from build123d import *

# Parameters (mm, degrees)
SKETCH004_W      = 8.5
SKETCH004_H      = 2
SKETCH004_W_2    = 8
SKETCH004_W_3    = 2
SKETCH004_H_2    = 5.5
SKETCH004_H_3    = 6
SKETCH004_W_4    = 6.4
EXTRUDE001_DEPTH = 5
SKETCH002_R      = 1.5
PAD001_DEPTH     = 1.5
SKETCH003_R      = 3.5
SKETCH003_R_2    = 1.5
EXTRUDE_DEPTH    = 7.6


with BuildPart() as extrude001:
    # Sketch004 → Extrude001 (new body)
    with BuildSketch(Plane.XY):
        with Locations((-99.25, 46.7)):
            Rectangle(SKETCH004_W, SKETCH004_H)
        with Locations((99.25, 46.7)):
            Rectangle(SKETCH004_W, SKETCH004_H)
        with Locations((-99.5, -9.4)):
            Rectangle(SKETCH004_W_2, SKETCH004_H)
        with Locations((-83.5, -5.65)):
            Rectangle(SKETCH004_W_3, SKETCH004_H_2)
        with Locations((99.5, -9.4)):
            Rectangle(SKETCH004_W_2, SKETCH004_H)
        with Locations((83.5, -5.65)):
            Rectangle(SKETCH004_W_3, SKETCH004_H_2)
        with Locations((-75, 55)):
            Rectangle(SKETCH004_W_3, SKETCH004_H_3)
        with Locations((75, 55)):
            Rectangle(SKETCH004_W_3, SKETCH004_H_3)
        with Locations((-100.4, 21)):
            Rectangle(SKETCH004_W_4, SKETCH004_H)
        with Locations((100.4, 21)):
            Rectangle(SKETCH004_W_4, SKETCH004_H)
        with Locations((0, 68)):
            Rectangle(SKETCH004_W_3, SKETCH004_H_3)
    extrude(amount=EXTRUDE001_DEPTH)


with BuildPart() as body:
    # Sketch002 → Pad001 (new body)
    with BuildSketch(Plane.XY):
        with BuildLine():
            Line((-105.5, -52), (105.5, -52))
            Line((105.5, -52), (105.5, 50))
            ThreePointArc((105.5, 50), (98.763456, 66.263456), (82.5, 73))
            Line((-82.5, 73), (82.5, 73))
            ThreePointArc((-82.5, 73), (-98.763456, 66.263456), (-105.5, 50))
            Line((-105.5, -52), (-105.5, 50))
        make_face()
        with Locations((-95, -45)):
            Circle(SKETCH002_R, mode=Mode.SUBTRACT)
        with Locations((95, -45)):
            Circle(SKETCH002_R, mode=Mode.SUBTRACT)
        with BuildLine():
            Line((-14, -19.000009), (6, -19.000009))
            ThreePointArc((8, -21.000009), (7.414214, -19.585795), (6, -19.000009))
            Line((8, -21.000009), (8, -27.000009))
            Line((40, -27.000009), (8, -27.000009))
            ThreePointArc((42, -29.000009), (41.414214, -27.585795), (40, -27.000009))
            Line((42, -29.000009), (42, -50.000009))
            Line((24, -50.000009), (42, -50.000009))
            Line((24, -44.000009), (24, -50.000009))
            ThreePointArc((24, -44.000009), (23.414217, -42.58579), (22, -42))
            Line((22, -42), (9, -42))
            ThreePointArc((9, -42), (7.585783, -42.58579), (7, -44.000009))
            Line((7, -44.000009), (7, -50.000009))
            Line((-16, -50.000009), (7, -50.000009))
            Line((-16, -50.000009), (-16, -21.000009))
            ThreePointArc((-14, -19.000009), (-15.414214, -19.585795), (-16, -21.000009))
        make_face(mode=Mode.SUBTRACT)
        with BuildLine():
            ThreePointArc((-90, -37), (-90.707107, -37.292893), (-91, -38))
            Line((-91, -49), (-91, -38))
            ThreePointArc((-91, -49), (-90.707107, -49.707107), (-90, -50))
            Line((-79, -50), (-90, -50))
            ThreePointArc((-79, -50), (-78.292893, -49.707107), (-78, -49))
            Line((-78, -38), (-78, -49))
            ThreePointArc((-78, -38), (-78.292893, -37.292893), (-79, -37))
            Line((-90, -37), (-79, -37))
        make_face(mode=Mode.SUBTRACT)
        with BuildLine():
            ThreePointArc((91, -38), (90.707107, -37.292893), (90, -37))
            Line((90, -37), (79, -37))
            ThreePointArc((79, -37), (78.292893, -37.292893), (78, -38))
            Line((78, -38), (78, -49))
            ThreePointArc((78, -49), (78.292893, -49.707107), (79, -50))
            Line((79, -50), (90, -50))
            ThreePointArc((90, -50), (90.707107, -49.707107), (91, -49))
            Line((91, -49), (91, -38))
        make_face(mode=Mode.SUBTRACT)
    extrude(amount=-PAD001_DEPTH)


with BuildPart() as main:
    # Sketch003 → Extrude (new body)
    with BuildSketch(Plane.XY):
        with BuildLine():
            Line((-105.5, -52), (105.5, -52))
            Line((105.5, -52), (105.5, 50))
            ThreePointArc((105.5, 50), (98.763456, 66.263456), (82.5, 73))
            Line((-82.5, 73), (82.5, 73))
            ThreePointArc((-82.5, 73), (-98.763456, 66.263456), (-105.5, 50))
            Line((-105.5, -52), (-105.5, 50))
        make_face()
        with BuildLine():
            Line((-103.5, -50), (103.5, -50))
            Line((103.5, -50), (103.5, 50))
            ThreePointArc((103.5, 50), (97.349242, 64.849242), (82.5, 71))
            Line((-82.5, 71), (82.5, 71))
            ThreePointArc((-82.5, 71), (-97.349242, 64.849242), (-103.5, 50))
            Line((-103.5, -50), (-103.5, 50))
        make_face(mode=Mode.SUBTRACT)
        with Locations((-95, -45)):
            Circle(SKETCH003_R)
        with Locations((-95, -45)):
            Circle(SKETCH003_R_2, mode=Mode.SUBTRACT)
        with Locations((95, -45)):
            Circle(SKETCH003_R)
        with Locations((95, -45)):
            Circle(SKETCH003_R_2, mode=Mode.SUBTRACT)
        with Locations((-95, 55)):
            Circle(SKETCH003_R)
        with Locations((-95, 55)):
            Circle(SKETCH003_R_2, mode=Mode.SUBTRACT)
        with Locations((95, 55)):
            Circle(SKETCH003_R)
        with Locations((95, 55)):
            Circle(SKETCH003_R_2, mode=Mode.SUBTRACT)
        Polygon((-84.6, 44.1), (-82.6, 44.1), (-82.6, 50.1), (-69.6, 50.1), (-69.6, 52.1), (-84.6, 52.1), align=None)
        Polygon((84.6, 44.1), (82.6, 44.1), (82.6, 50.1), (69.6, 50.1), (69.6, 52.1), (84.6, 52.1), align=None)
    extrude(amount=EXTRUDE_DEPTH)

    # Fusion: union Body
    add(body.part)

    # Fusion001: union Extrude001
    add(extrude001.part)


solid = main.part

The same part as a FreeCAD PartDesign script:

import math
import FreeCAD as App
import Part
import Sketcher
from FreeCAD import Vector

doc = App.newDocument("Part")
body = doc.addObject("PartDesign::Body", "Body")
body.AllowCompound = True

sketch1 = body.newObject("Sketcher::SketchObject", "Sketch")
sketch1.AttachmentSupport = (doc.getObject("XY_Plane"), [""])
sketch1.MapMode = "FlatFace"
sketch1.addGeometry([
    Part.LineSegment(Vector(-103.5, 47.7, 0), Vector(-103.5, 45.7, 0)),
    Part.LineSegment(Vector(-103.5, 45.7, 0), Vector(-95, 45.7, 0)),
    Part.LineSegment(Vector(-95, 45.7, 0), Vector(-95, 47.7, 0)),
    Part.LineSegment(Vector(-95, 47.7, 0), Vector(-103.5, 47.7, 0)),
    Part.LineSegment(Vector(95, 47.7, 0), Vector(95, 45.7, 0)),
    Part.LineSegment(Vector(95, 45.7, 0), Vector(103.5, 45.7, 0)),
    Part.LineSegment(Vector(103.5, 45.7, 0), Vector(103.5, 47.7, 0)),
    Part.LineSegment(Vector(103.5, 47.7, 0), Vector(95, 47.7, 0)),
    Part.LineSegment(Vector(-103.5, -8.4, 0), Vector(-103.5, -10.4, 0)),
    Part.LineSegment(Vector(-103.5, -10.4, 0), Vector(-95.5, -10.4, 0)),
    Part.LineSegment(Vector(-95.5, -10.4, 0), Vector(-95.5, -8.4, 0)),
    Part.LineSegment(Vector(-95.5, -8.4, 0), Vector(-103.5, -8.4, 0)),
    Part.LineSegment(Vector(-84.5, -2.9, 0), Vector(-84.5, -8.4, 0)),
    Part.LineSegment(Vector(-84.5, -8.4, 0), Vector(-82.5, -8.4, 0)),
    Part.LineSegment(Vector(-82.5, -8.4, 0), Vector(-82.5, -2.9, 0)),
    Part.LineSegment(Vector(-82.5, -2.9, 0), Vector(-84.5, -2.9, 0)),
    Part.LineSegment(Vector(95.5, -8.4, 0), Vector(95.5, -10.4, 0)),
    Part.LineSegment(Vector(95.5, -10.4, 0), Vector(103.5, -10.4, 0)),
    Part.LineSegment(Vector(103.5, -10.4, 0), Vector(103.5, -8.4, 0)),
    Part.LineSegment(Vector(103.5, -8.4, 0), Vector(95.5, -8.4, 0)),
    Part.LineSegment(Vector(82.5, -2.9, 0), Vector(82.5, -8.4, 0)),
    Part.LineSegment(Vector(82.5, -8.4, 0), Vector(84.5, -8.4, 0)),
    Part.LineSegment(Vector(84.5, -8.4, 0), Vector(84.5, -2.9, 0)),
    Part.LineSegment(Vector(84.5, -2.9, 0), Vector(82.5, -2.9, 0)),
    Part.LineSegment(Vector(-76, 58, 0), Vector(-76, 52, 0)),
    Part.LineSegment(Vector(-76, 52, 0), Vector(-74, 52, 0)),
    Part.LineSegment(Vector(-74, 52, 0), Vector(-74, 58, 0)),
    Part.LineSegment(Vector(-74, 58, 0), Vector(-76, 58, 0)),
    Part.LineSegment(Vector(74, 58, 0), Vector(74, 52, 0)),
    Part.LineSegment(Vector(74, 52, 0), Vector(76, 52, 0)),
    Part.LineSegment(Vector(76, 52, 0), Vector(76, 58, 0)),
    Part.LineSegment(Vector(76, 58, 0), Vector(74, 58, 0)),
    Part.LineSegment(Vector(-103.6, 22, 0), Vector(-103.6, 20, 0)),
    Part.LineSegment(Vector(-103.6, 20, 0), Vector(-97.2, 20, 0)),
    Part.LineSegment(Vector(-97.2, 20, 0), Vector(-97.2, 22, 0)),
    Part.LineSegment(Vector(-97.2, 22, 0), Vector(-103.6, 22, 0)),
    Part.LineSegment(Vector(97.2, 22, 0), Vector(97.2, 20, 0)),
    Part.LineSegment(Vector(97.2, 20, 0), Vector(103.6, 20, 0)),
    Part.LineSegment(Vector(103.6, 20, 0), Vector(103.6, 22, 0)),
    Part.LineSegment(Vector(103.6, 22, 0), Vector(97.2, 22, 0)),
    Part.LineSegment(Vector(-1, 71, 0), Vector(-1, 65, 0)),
    Part.LineSegment(Vector(-1, 65, 0), Vector(1, 65, 0)),
    Part.LineSegment(Vector(1, 65, 0), Vector(1, 71, 0)),
    Part.LineSegment(Vector(1, 71, 0), Vector(-1, 71, 0)),
], False)
sketch1.addConstraint([
    Sketcher.Constraint("Coincident", 0, 2, 1, 1),
    Sketcher.Constraint("Coincident", 1, 2, 2, 1),
    Sketcher.Constraint("Coincident", 2, 2, 3, 1),
    Sketcher.Constraint("Coincident", 3, 2, 0, 1),
    Sketcher.Constraint("Coincident", 4, 2, 5, 1),
    Sketcher.Constraint("Coincident", 5, 2, 6, 1),
    Sketcher.Constraint("Coincident", 6, 2, 7, 1),
    Sketcher.Constraint("Coincident", 7, 2, 4, 1),
    Sketcher.Constraint("Coincident", 8, 2, 9, 1),
    Sketcher.Constraint("Coincident", 9, 2, 10, 1),
    Sketcher.Constraint("Coincident", 10, 2, 11, 1),
    Sketcher.Constraint("Coincident", 11, 2, 8, 1),
    Sketcher.Constraint("Coincident", 12, 2, 13, 1),
    Sketcher.Constraint("Coincident", 13, 2, 14, 1),
    Sketcher.Constraint("Coincident", 14, 2, 15, 1),
    Sketcher.Constraint("Coincident", 15, 2, 12, 1),
    Sketcher.Constraint("Coincident", 16, 2, 17, 1),
    Sketcher.Constraint("Coincident", 17, 2, 18, 1),
    Sketcher.Constraint("Coincident", 18, 2, 19, 1),
    Sketcher.Constraint("Coincident", 19, 2, 16, 1),
    Sketcher.Constraint("Coincident", 20, 2, 21, 1),
    Sketcher.Constraint("Coincident", 21, 2, 22, 1),
    Sketcher.Constraint("Coincident", 22, 2, 23, 1),
    Sketcher.Constraint("Coincident", 23, 2, 20, 1),
    Sketcher.Constraint("Coincident", 24, 2, 25, 1),
    Sketcher.Constraint("Coincident", 25, 2, 26, 1),
    Sketcher.Constraint("Coincident", 26, 2, 27, 1),
    Sketcher.Constraint("Coincident", 27, 2, 24, 1),
    Sketcher.Constraint("Coincident", 28, 2, 29, 1),
    Sketcher.Constraint("Coincident", 29, 2, 30, 1),
    Sketcher.Constraint("Coincident", 30, 2, 31, 1),
    Sketcher.Constraint("Coincident", 31, 2, 28, 1),
    Sketcher.Constraint("Coincident", 32, 2, 33, 1),
    Sketcher.Constraint("Coincident", 33, 2, 34, 1),
    Sketcher.Constraint("Coincident", 34, 2, 35, 1),
    Sketcher.Constraint("Coincident", 35, 2, 32, 1),
    Sketcher.Constraint("Coincident", 36, 2, 37, 1),
    Sketcher.Constraint("Coincident", 37, 2, 38, 1),
    Sketcher.Constraint("Coincident", 38, 2, 39, 1),
    Sketcher.Constraint("Coincident", 39, 2, 36, 1),
    Sketcher.Constraint("Coincident", 40, 2, 41, 1),
    Sketcher.Constraint("Coincident", 41, 2, 42, 1),
    Sketcher.Constraint("Coincident", 42, 2, 43, 1),
    Sketcher.Constraint("Coincident", 43, 2, 40, 1),
    Sketcher.Constraint("Vertical", 0),
    Sketcher.Constraint("Horizontal", 1),
    Sketcher.Constraint("Vertical", 2),
    Sketcher.Constraint("Horizontal", 3),
    Sketcher.Constraint("Vertical", 4),
    Sketcher.Constraint("Horizontal", 5),
    Sketcher.Constraint("Vertical", 6),
    Sketcher.Constraint("Horizontal", 7),
    Sketcher.Constraint("Vertical", 8),
    Sketcher.Constraint("Horizontal", 9),
    Sketcher.Constraint("Vertical", 10),
    Sketcher.Constraint("Horizontal", 11),
    Sketcher.Constraint("Vertical", 12),
    Sketcher.Constraint("Horizontal", 13),
    Sketcher.Constraint("Vertical", 14),
    Sketcher.Constraint("Horizontal", 15),
    Sketcher.Constraint("Vertical", 16),
    Sketcher.Constraint("Horizontal", 17),
    Sketcher.Constraint("Vertical", 18),
    Sketcher.Constraint("Horizontal", 19),
    Sketcher.Constraint("Vertical", 20),
    Sketcher.Constraint("Horizontal", 21),
    Sketcher.Constraint("Vertical", 22),
    Sketcher.Constraint("Horizontal", 23),
    Sketcher.Constraint("Vertical", 24),
    Sketcher.Constraint("Horizontal", 25),
    Sketcher.Constraint("Vertical", 26),
    Sketcher.Constraint("Horizontal", 27),
    Sketcher.Constraint("Vertical", 28),
    Sketcher.Constraint("Horizontal", 29),
    Sketcher.Constraint("Vertical", 30),
    Sketcher.Constraint("Horizontal", 31),
    Sketcher.Constraint("Vertical", 32),
    Sketcher.Constraint("Horizontal", 33),
    Sketcher.Constraint("Vertical", 34),
    Sketcher.Constraint("Horizontal", 35),
    Sketcher.Constraint("Vertical", 36),
    Sketcher.Constraint("Horizontal", 37),
    Sketcher.Constraint("Vertical", 38),
    Sketcher.Constraint("Horizontal", 39),
    Sketcher.Constraint("Vertical", 40),
    Sketcher.Constraint("Horizontal", 41),
    Sketcher.Constraint("Vertical", 42),
    Sketcher.Constraint("Horizontal", 43),
    Sketcher.Constraint("Symmetric", 1, 2, 4, 2, -2),
    Sketcher.Constraint("Symmetric", 3, 2, 6, 2, -2),
    Sketcher.Constraint("Symmetric", 9, 2, 16, 2, -2),
    Sketcher.Constraint("Symmetric", 11, 2, 18, 2, -2),
    Sketcher.Constraint("Symmetric", 13, 2, 20, 2, -2),
    Sketcher.Constraint("Symmetric", 15, 2, 22, 2, -2),
    Sketcher.Constraint("Symmetric", 25, 2, 28, 2, -2),
    Sketcher.Constraint("Symmetric", 27, 2, 30, 2, -2),
    Sketcher.Constraint("Symmetric", 33, 2, 36, 2, -2),
    Sketcher.Constraint("Symmetric", 35, 2, 38, 2, -2),
    Sketcher.Constraint("Horizontal", 11, 2, 12, 2),
    Sketcher.Constraint("Vertical", 3, 2, 8, 2),
    Sketcher.Constraint("Equal", 23, 25),
    Sketcher.Constraint("Equal", 31, 41),
    Sketcher.Constraint("Equal", 43, 0),
    Sketcher.Constraint("Equal", 6, 8),
    Sketcher.Constraint("Equal", 18, 32),
    Sketcher.Constraint("Equal", 30, 40),
    Sketcher.Constraint("DistanceX", 9, 1, 9, 2, 8.0),
    Sketcher.Constraint("DistanceX", 13, 1, 13, 2, 2.0),
    Sketcher.Constraint("DistanceY", 24, 2, 24, 1, 6.0),
    Sketcher.Constraint("DistanceX", 1, 1, 1, 2, 8.5),
    Sketcher.Constraint("DistanceX", 33, 1, 33, 2, 6.4),
    Sketcher.Constraint("DistanceY", 12, 2, 12, 1, 5.5),
    Sketcher.Constraint("DistanceX", 1, 2, -1, 1, 95.0),
    Sketcher.Constraint("DistanceX", 24, 2, -1, 1, 76.0),
    Sketcher.Constraint("DistanceY", -1, 1, 24, 2, 52.0),
    Sketcher.Constraint("DistanceY", -1, 1, 32, 2, 20.0),
    Sketcher.Constraint("DistanceX", 40, 2, -1, 1, 1.0),
    Sketcher.Constraint("DistanceY", -1, 1, 40, 2, 65.0),
    Sketcher.Constraint("DistanceX", 10, 2, 12, 2, 11.0),
    Sketcher.Constraint("DistanceY", -1, 1, 0, 2, 45.7),
    Sketcher.Constraint("DistanceY", 8, 2, -1, 1, 10.4),
    Sketcher.Constraint("DistanceX", 32, 2, -1, 1, 103.6),
])
pad1 = body.newObject("PartDesign::Pad", "Pad")
pad1.Profile = sketch1
pad1.Length = 5
body2 = doc.addObject("PartDesign::Body", "Body001")

sketch2 = body2.newObject("Sketcher::SketchObject", "Sketch001")
sketch2.AttachmentSupport = (doc.getObject("XY_Plane001"), [""])
sketch2.MapMode = "FlatFace"
sketch2.addGeometry([
    Part.LineSegment(Vector(-105.5, -52, 0), Vector(105.5, -52, 0)),
    Part.LineSegment(Vector(105.5, -52, 0), Vector(105.5, 50, 0)),
    Part.ArcOfCircle(Part.Circle(Vector(82.5, 50, 0), Vector(0, 0, 1), 23), math.radians(0), math.radians(90)),
    Part.LineSegment(Vector(82.5, 73, 0), Vector(-82.5, 73, 0)),
    Part.ArcOfCircle(Part.Circle(Vector(-82.5, 50, 0), Vector(0, 0, 1), 23), math.radians(90), math.radians(180)),
    Part.LineSegment(Vector(-105.5, 50, 0), Vector(-105.5, -52, 0)),
    Part.Circle(Vector(-95, -45, 0), Vector(0, 0, 1), 1.5),
    Part.ArcOfCircle(Part.Circle(Vector(-90, -38, 0), Vector(0, 0, 1), 1), math.radians(90), math.radians(180)),
    Part.LineSegment(Vector(-90, -37, 0), Vector(-79, -37, 0)),
    Part.ArcOfCircle(Part.Circle(Vector(-79, -38, 0), Vector(0, 0, 1), 1), math.radians(0), math.radians(90)),
    Part.LineSegment(Vector(-78, -38, 0), Vector(-78, -49, 0)),
    Part.ArcOfCircle(Part.Circle(Vector(-79, -49, 0), Vector(0, 0, 1), 1), math.radians(-90), math.radians(0)),
    Part.LineSegment(Vector(-79, -50, 0), Vector(-90, -50, 0)),
    Part.ArcOfCircle(Part.Circle(Vector(-90, -49, 0), Vector(0, 0, 1), 1), math.radians(180), math.radians(270)),
    Part.LineSegment(Vector(-91, -49, 0), Vector(-91, -38, 0)),
    Part.Circle(Vector(95, -45, 0), Vector(0, 0, 1), 1.5),
    Part.ArcOfCircle(Part.Circle(Vector(90, -38, 0), Vector(0, 0, 1), 1), math.radians(0), math.radians(90)),
    Part.LineSegment(Vector(91, -38, 0), Vector(91, -49, 0)),
    Part.ArcOfCircle(Part.Circle(Vector(90, -49, 0), Vector(0, 0, 1), 1), math.radians(-90), math.radians(0)),
    Part.LineSegment(Vector(90, -50, 0), Vector(79, -50, 0)),
    Part.ArcOfCircle(Part.Circle(Vector(79, -49, 0), Vector(0, 0, 1), 1), math.radians(180), math.radians(270)),
    Part.LineSegment(Vector(78, -49, 0), Vector(78, -38, 0)),
    Part.ArcOfCircle(Part.Circle(Vector(79, -38, 0), Vector(0, 0, 1), 1), math.radians(90), math.radians(180)),
    Part.LineSegment(Vector(79, -37, 0), Vector(90, -37, 0)),
    Part.ArcOfCircle(Part.Circle(Vector(-14, -21, 0), Vector(0, 0, 1), 2), math.radians(90), math.radians(180)),
    Part.LineSegment(Vector(-14, -19, 0), Vector(6, -19, 0)),
    Part.ArcOfCircle(Part.Circle(Vector(6, -21, 0), Vector(0, 0, 1), 2), math.radians(0), math.radians(90)),
    Part.LineSegment(Vector(8, -21, 0), Vector(8, -27, 0)),
    Part.LineSegment(Vector(8, -27, 0), Vector(40, -27, 0)),
    Part.ArcOfCircle(Part.Circle(Vector(40, -29, 0), Vector(0, 0, 1), 2), math.radians(0), math.radians(90)),
    Part.LineSegment(Vector(42, -29, 0), Vector(42, -50, 0)),
    Part.LineSegment(Vector(42, -50, 0), Vector(24, -50, 0)),
    Part.LineSegment(Vector(24, -50, 0), Vector(24, -44, 0)),
    Part.ArcOfCircle(Part.Circle(Vector(22, -44, 0), Vector(0, 0, 1), 2), math.radians(0), math.radians(90)),
    Part.LineSegment(Vector(22, -42, 0), Vector(9, -42, 0)),
    Part.ArcOfCircle(Part.Circle(Vector(9, -44, 0), Vector(0, 0, 1), 2), math.radians(90), math.radians(180)),
    Part.LineSegment(Vector(7, -44, 0), Vector(7, -50, 0)),
    Part.LineSegment(Vector(7, -50, 0), Vector(-16, -50, 0)),
    Part.LineSegment(Vector(-16, -50, 0), Vector(-16, -21, 0)),
], False)
sketch2.addConstraint([
    Sketcher.Constraint("Coincident", 0, 2, 1, 1),
    Sketcher.Constraint("Tangent", 1, 2, 2, 1),
    Sketcher.Constraint("Tangent", 2, 2, 3, 1),
    Sketcher.Constraint("Tangent", 3, 2, 4, 1),
    Sketcher.Constraint("Tangent", 4, 2, 5, 1),
    Sketcher.Constraint("Coincident", 5, 2, 0, 1),
    Sketcher.Constraint("Tangent", 7, 1, 8, 1),
    Sketcher.Constraint("Tangent", 8, 2, 9, 2),
    Sketcher.Constraint("Tangent", 9, 1, 10, 1),
    Sketcher.Constraint("Tangent", 10, 2, 11, 2),
    Sketcher.Constraint("Tangent", 11, 1, 12, 1),
    Sketcher.Constraint("Tangent", 12, 2, 13, 2),
    Sketcher.Constraint("Tangent", 13, 1, 14, 1),
    Sketcher.Constraint("Tangent", 14, 2, 7, 2),
    Sketcher.Constraint("Tangent", 16, 1, 17, 1),
    Sketcher.Constraint("Tangent", 17, 2, 18, 2),
    Sketcher.Constraint("Tangent", 18, 1, 19, 1),
    Sketcher.Constraint("Tangent", 19, 2, 20, 2),
    Sketcher.Constraint("Tangent", 20, 1, 21, 1),
    Sketcher.Constraint("Tangent", 21, 2, 22, 2),
    Sketcher.Constraint("Tangent", 22, 1, 23, 1),
    Sketcher.Constraint("Tangent", 23, 2, 16, 2),
    Sketcher.Constraint("Tangent", 24, 1, 25, 1),
    Sketcher.Constraint("Tangent", 25, 2, 26, 2),
    Sketcher.Constraint("Tangent", 26, 1, 27, 1),
    Sketcher.Constraint("Coincident", 27, 2, 28, 1),
    Sketcher.Constraint("Tangent", 28, 2, 29, 2),
    Sketcher.Constraint("Tangent", 29, 1, 30, 1),
    Sketcher.Constraint("Coincident", 30, 2, 31, 1),
    Sketcher.Constraint("Coincident", 31, 2, 32, 1),
    Sketcher.Constraint("Coincident", 32, 2, 33, 1),
    Sketcher.Constraint("Tangent", 33, 2, 34, 1),
    Sketcher.Constraint("Tangent", 34, 2, 35, 1),
    Sketcher.Constraint("Coincident", 35, 2, 36, 1),
    Sketcher.Constraint("Coincident", 36, 2, 37, 1),
    Sketcher.Constraint("Coincident", 37, 2, 38, 1),
    Sketcher.Constraint("Tangent", 38, 2, 24, 2),
    Sketcher.Constraint("Horizontal", 0),
    Sketcher.Constraint("Vertical", 1),
    Sketcher.Constraint("Horizontal", 3),
    Sketcher.Constraint("Vertical", 5),
    Sketcher.Constraint("Horizontal", 8),
    Sketcher.Constraint("Vertical", 10),
    Sketcher.Constraint("Horizontal", 12),
    Sketcher.Constraint("Vertical", 14),
    Sketcher.Constraint("Vertical", 17),
    Sketcher.Constraint("Horizontal", 19),
    Sketcher.Constraint("Vertical", 21),
    Sketcher.Constraint("Horizontal", 23),
    Sketcher.Constraint("Horizontal", 25),
    Sketcher.Constraint("Vertical", 27),
    Sketcher.Constraint("Horizontal", 28),
    Sketcher.Constraint("Vertical", 30),
    Sketcher.Constraint("Horizontal", 31),
    Sketcher.Constraint("Vertical", 32),
    Sketcher.Constraint("Horizontal", 34),
    Sketcher.Constraint("Vertical", 36),
    Sketcher.Constraint("Horizontal", 37),
    Sketcher.Constraint("Vertical", 38),
    Sketcher.Constraint("Equal", 2, 4),
    Sketcher.Constraint("Equal", 7, 9),
    Sketcher.Constraint("Equal", 9, 11),
    Sketcher.Constraint("Equal", 11, 13),
    Sketcher.Constraint("Equal", 6, 15),
    Sketcher.Constraint("Equal", 13, 16),
    Sketcher.Constraint("Equal", 16, 18),
    Sketcher.Constraint("Equal", 18, 20),
    Sketcher.Constraint("Equal", 20, 22),
    Sketcher.Constraint("Equal", 24, 26),
    Sketcher.Constraint("Equal", 26, 29),
    Sketcher.Constraint("Equal", 29, 33),
    Sketcher.Constraint("Equal", 33, 35),
    Sketcher.Constraint("Symmetric", 6, 3, 15, 3, -2),
    Sketcher.Constraint("Symmetric", 7, 3, 16, 3, -2),
    Sketcher.Constraint("Symmetric", 11, 3, 20, 3, -2),
    Sketcher.Constraint("Horizontal", 32, 2, 35, 2),
    Sketcher.Constraint("Horizontal", 31, 2, 36, 2),
    Sketcher.Constraint("Equal", 23, 10),
    Sketcher.Constraint("Equal", 27, 32),
    Sketcher.Constraint("Diameter", 6, 3.0),
    Sketcher.Constraint("Radius", 2, 23.0),
    Sketcher.Constraint("Radius", 7, 0.999999),
    Sketcher.Constraint("Radius", 24, 1.999999),
    Sketcher.Constraint("DistanceX", 0, 1, 0, 2, 211.0),
    Sketcher.Constraint("DistanceX", 8, 1, 8, 2, 11.0),
    Sketcher.Constraint("DistanceX", 25, 1, 25, 2, 20.0),
    Sketcher.Constraint("DistanceX", 28, 1, 28, 2, 32.0),
    Sketcher.Constraint("DistanceX", 31, 2, 31, 1, 18.0),
    Sketcher.Constraint("DistanceX", 34, 2, 34, 1, 13.0),
    Sketcher.Constraint("DistanceY", 1, 1, 1, 2, 102.0),
    Sketcher.Constraint("DistanceY", 27, 2, 27, 1, 6.0),
    Sketcher.Constraint("DistanceY", 30, 2, 30, 1, 21.0),
    Sketcher.Constraint("DistanceY", -1, 1, 2, 3, 50.0),
    Sketcher.Constraint("DistanceX", 6, 3, -1, 1, 95.0),
    Sketcher.Constraint("DistanceY", 6, 3, -1, 1, 45.0),
    Sketcher.Constraint("DistanceX", 7, 3, -1, 1, 90.000001),
    Sketcher.Constraint("DistanceY", 7, 3, -1, 1, 37.999999),
    Sketcher.Constraint("DistanceX", 24, 3, -1, 1, 14.000001),
    Sketcher.Constraint("DistanceY", 33, 3, -1, 1, 44.0),
    Sketcher.Constraint("DistanceX", -1, 1, 2, 3, 82.5),
    Sketcher.Constraint("DistanceY", 24, 1, -1, 1, 19.000009),
])
pad2 = body2.newObject("PartDesign::Pad", "Pad001")
pad2.Profile = sketch2
pad2.Length = 1.5
pad2.Reversed = True
body3 = doc.addObject("PartDesign::Body", "Body002")
body3.AllowCompound = True

sketch3 = body3.newObject("Sketcher::SketchObject", "Sketch002")
sketch3.AttachmentSupport = (doc.getObject("XY_Plane002"), [""])
sketch3.MapMode = "FlatFace"
sketch3.addGeometry([
    Part.LineSegment(Vector(-105.5, -52, 0), Vector(105.5, -52, 0)),
    Part.LineSegment(Vector(105.5, -52, 0), Vector(105.5, 50, 0)),
    Part.ArcOfCircle(Part.Circle(Vector(82.5, 50, 0), Vector(0, 0, 1), 23), math.radians(0), math.radians(90)),
    Part.LineSegment(Vector(82.5, 73, 0), Vector(-82.5, 73, 0)),
    Part.ArcOfCircle(Part.Circle(Vector(-82.5, 50, 0), Vector(0, 0, 1), 23), math.radians(90), math.radians(180)),
    Part.LineSegment(Vector(-105.5, 50, 0), Vector(-105.5, -52, 0)),
    Part.LineSegment(Vector(103.5, -50, 0), Vector(-103.5, -50, 0)),
    Part.LineSegment(Vector(-103.5, -50, 0), Vector(-103.5, 50, 0)),
    Part.ArcOfCircle(Part.Circle(Vector(-82.5, 50, 0), Vector(0, 0, 1), 21), math.radians(90), math.radians(180)),
    Part.LineSegment(Vector(-82.5, 71, 0), Vector(82.5, 71, 0)),
    Part.ArcOfCircle(Part.Circle(Vector(82.5, 50, 0), Vector(0, 0, 1), 21), math.radians(0), math.radians(90)),
    Part.LineSegment(Vector(103.5, 50, 0), Vector(103.5, -50, 0)),
    Part.Circle(Vector(-95, -45, 0), Vector(0, 0, 1), 3.5),
    Part.Circle(Vector(-95, -45, 0), Vector(0, 0, 1), 1.5),
    Part.Circle(Vector(95, -45, 0), Vector(0, 0, 1), 3.5),
    Part.Circle(Vector(95, -45, 0), Vector(0, 0, 1), 1.5),
    Part.Circle(Vector(-95, 55, 0), Vector(0, 0, 1), 3.5),
    Part.Circle(Vector(-95, 55, 0), Vector(0, 0, 1), 1.5),
    Part.Circle(Vector(95, 55, 0), Vector(0, 0, 1), 3.5),
    Part.Circle(Vector(95, 55, 0), Vector(0, 0, 1), 1.5),
    Part.LineSegment(Vector(-84.6, 44.1, 0), Vector(-82.6, 44.1, 0)),
    Part.LineSegment(Vector(-82.6, 44.1, 0), Vector(-82.6, 50.1, 0)),
    Part.LineSegment(Vector(-82.6, 50.1, 0), Vector(-69.6, 50.1, 0)),
    Part.LineSegment(Vector(-69.6, 50.1, 0), Vector(-69.6, 52.1, 0)),
    Part.LineSegment(Vector(-69.6, 52.1, 0), Vector(-84.6, 52.1, 0)),
    Part.LineSegment(Vector(-84.6, 52.1, 0), Vector(-84.6, 44.1, 0)),
    Part.LineSegment(Vector(82.6, 44.1, 0), Vector(84.6, 44.1, 0)),
    Part.LineSegment(Vector(84.6, 44.1, 0), Vector(84.6, 52.1, 0)),
    Part.LineSegment(Vector(84.6, 52.1, 0), Vector(69.6, 52.1, 0)),
    Part.LineSegment(Vector(69.6, 52.1, 0), Vector(69.6, 50.1, 0)),
    Part.LineSegment(Vector(69.6, 50.1, 0), Vector(82.6, 50.1, 0)),
    Part.LineSegment(Vector(82.6, 50.1, 0), Vector(82.6, 44.1, 0)),
], False)
sketch3.addConstraint([
    Sketcher.Constraint("Coincident", 0, 2, 1, 1),
    Sketcher.Constraint("Tangent", 1, 2, 2, 1),
    Sketcher.Constraint("Tangent", 2, 2, 3, 1),
    Sketcher.Constraint("Tangent", 3, 2, 4, 1),
    Sketcher.Constraint("Tangent", 4, 2, 5, 1),
    Sketcher.Constraint("Coincident", 5, 2, 0, 1),
    Sketcher.Constraint("Coincident", 6, 2, 7, 1),
    Sketcher.Constraint("Tangent", 7, 2, 8, 2),
    Sketcher.Constraint("Tangent", 8, 1, 9, 1),
    Sketcher.Constraint("Tangent", 9, 2, 10, 2),
    Sketcher.Constraint("Tangent", 10, 1, 11, 1),
    Sketcher.Constraint("Coincident", 11, 2, 6, 1),
    Sketcher.Constraint("Coincident", 20, 2, 21, 1),
    Sketcher.Constraint("Coincident", 21, 2, 22, 1),
    Sketcher.Constraint("Coincident", 22, 2, 23, 1),
    Sketcher.Constraint("Coincident", 23, 2, 24, 1),
    Sketcher.Constraint("Coincident", 24, 2, 25, 1),
    Sketcher.Constraint("Coincident", 25, 2, 20, 1),
    Sketcher.Constraint("Coincident", 26, 2, 27, 1),
    Sketcher.Constraint("Coincident", 27, 2, 28, 1),
    Sketcher.Constraint("Coincident", 28, 2, 29, 1),
    Sketcher.Constraint("Coincident", 29, 2, 30, 1),
    Sketcher.Constraint("Coincident", 30, 2, 31, 1),
    Sketcher.Constraint("Coincident", 31, 2, 26, 1),
    Sketcher.Constraint("Horizontal", 0),
    Sketcher.Constraint("Vertical", 1),
    Sketcher.Constraint("Horizontal", 3),
    Sketcher.Constraint("Vertical", 5),
    Sketcher.Constraint("Horizontal", 6),
    Sketcher.Constraint("Vertical", 7),
    Sketcher.Constraint("Horizontal", 9),
    Sketcher.Constraint("Vertical", 11),
    Sketcher.Constraint("Horizontal", 20),
    Sketcher.Constraint("Vertical", 21),
    Sketcher.Constraint("Horizontal", 22),
    Sketcher.Constraint("Vertical", 23),
    Sketcher.Constraint("Horizontal", 24),
    Sketcher.Constraint("Vertical", 25),
    Sketcher.Constraint("Horizontal", 26),
    Sketcher.Constraint("Vertical", 27),
    Sketcher.Constraint("Horizontal", 28),
    Sketcher.Constraint("Vertical", 29),
    Sketcher.Constraint("Horizontal", 30),
    Sketcher.Constraint("Vertical", 31),
    Sketcher.Constraint("Coincident", 8, 3, 4, 3),
    Sketcher.Constraint("Coincident", 10, 3, 2, 3),
    Sketcher.Constraint("Coincident", 13, 3, 12, 3),
    Sketcher.Constraint("Coincident", 15, 3, 14, 3),
    Sketcher.Constraint("Coincident", 17, 3, 16, 3),
    Sketcher.Constraint("Coincident", 19, 3, 18, 3),
    Sketcher.Constraint("Equal", 2, 4),
    Sketcher.Constraint("Equal", 12, 14),
    Sketcher.Constraint("Equal", 13, 15),
    Sketcher.Constraint("Equal", 14, 16),
    Sketcher.Constraint("Equal", 15, 17),
    Sketcher.Constraint("Equal", 16, 18),
    Sketcher.Constraint("Equal", 17, 19),
    Sketcher.Constraint("Symmetric", 6, 2, 10, 1, -1, 1),
    Sketcher.Constraint("Symmetric", 12, 3, 14, 3, -2),
    Sketcher.Constraint("Symmetric", 16, 3, 18, 3, -2),
    Sketcher.Constraint("Symmetric", 25, 2, 26, 2, -2),
    Sketcher.Constraint("Symmetric", 23, 2, 28, 2, -2),
    Sketcher.Constraint("Symmetric", 21, 2, 30, 2, -2),
    Sketcher.Constraint("Vertical", 13, 3, 16, 3),
    Sketcher.Constraint("Equal", 26, 23),
    Sketcher.Constraint("Diameter", 12, 7.0),
    Sketcher.Constraint("Diameter", 13, 3.0),
    Sketcher.Constraint("Radius", 2, 23.0),
    Sketcher.Constraint("Radius", 8, 21.000001),
    Sketcher.Constraint("DistanceX", 0, 1, 0, 2, 211.0),
    Sketcher.Constraint("DistanceX", 20, 1, 20, 2, 2.0),
    Sketcher.Constraint("DistanceX", 22, 1, 22, 2, 13.0),
    Sketcher.Constraint("DistanceY", 1, 1, 1, 2, 102.0),
    Sketcher.Constraint("DistanceY", 7, 1, 7, 2, 100.0),
    Sketcher.Constraint("DistanceY", 21, 1, 21, 2, 6.0),
    Sketcher.Constraint("DistanceX", 12, 3, -1, 1, 95.0),
    Sketcher.Constraint("DistanceY", 12, 3, -1, 1, 45.0),
    Sketcher.Constraint("DistanceY", -1, 1, 16, 3, 55.0),
    Sketcher.Constraint("DistanceX", 20, 2, -1, 1, 82.6),
    Sketcher.Constraint("DistanceY", -1, 1, 20, 2, 44.1),
])
pad3 = body3.newObject("PartDesign::Pad", "Pad002")
pad3.Profile = sketch3
pad3.Length = 7.6
doc.recompute()

boolean = body3.newObject("PartDesign::Boolean", "Boolean")
boolean.Type = "Fuse"
boolean.addObjects([body2])
doc.recompute()

boolean2 = body3.newObject("PartDesign::Boolean", "Boolean001")
boolean2.Type = "Fuse"
boolean2.addObjects([body])

doc.recompute()
